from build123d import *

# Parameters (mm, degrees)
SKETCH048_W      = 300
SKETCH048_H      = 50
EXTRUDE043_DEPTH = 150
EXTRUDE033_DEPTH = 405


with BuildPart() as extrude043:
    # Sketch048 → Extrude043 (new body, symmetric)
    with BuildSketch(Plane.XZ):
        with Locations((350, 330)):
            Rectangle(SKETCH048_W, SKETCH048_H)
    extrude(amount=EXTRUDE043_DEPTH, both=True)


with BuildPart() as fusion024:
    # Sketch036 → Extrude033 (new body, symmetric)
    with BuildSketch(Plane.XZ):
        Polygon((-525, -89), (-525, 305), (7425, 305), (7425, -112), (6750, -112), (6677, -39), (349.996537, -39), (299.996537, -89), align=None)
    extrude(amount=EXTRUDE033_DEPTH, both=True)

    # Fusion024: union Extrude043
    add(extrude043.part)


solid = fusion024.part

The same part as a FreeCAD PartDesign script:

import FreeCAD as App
import Part
import Sketcher
from FreeCAD import Vector
Q = App.Units.Quantity

doc = App.newDocument("Part")
body = doc.addObject("PartDesign::Body", "Body")

sketch1 = body.newObject("Sketcher::SketchObject", "Sketch")
sketch1.AttachmentSupport = (doc.getObject("XZ_Plane"), [""])
sketch1.MapMode = "FlatFace"
sketch1.addGeometry([
    Part.LineSegment(Vector(200, 355, 0), Vector(200, 305, 0)),
    Part.LineSegment(Vector(200, 305, 0), Vector(500, 305, 0)),
    Part.LineSegment(Vector(500, 305, 0), Vector(500, 355, 0)),
    Part.LineSegment(Vector(500, 355, 0), Vector(200, 355, 0)),
], False)
sketch1.addConstraint([
    Sketcher.Constraint("Coincident", 0, 2, 1, 1),
    Sketcher.Constraint("Coincident", 1, 2, 2, 1),
    Sketcher.Constraint("Coincident", 2, 2, 3, 1),
    Sketcher.Constraint("Coincident", 3, 2, 0, 1),
    Sketcher.Constraint("Vertical", 0),
    Sketcher.Constraint("Horizontal", 1),
    Sketcher.Constraint("Vertical", 2),
    Sketcher.Constraint("Horizontal", 3),
    Sketcher.Constraint("DistanceX", 1, 1, 1, 2, Q("300 mm")),
    Sketcher.Constraint("DistanceY", 0, 2, 0, 1, Q("50 mm")),
    Sketcher.Constraint("DistanceX", -1, 1, 0, 2, Q("200 mm")),
    Sketcher.Constraint("DistanceY", -1, 1, 0, 2, Q("305 mm")),
])
pad1 = body.newObject("PartDesign::Pad", "Pad")
pad1.Profile = sketch1
pad1.Length = 300
pad1.Midplane = True
body2 = doc.addObject("PartDesign::Body", "Body001")

sketch2 = body2.newObject("Sketcher::SketchObject", "Sketch001")
sketch2.AttachmentSupport = (doc.getObject("XZ_Plane001"), [""])
sketch2.MapMode = "FlatFace"
sketch2.addGeometry([
    Part.LineSegment(Vector(-525, 305, 0), Vector(-525, -89, 0)),
    Part.LineSegment(Vector(-525, -89, 0), Vector(300, -89, 0)),
    Part.LineSegment(Vector(300, -89, 0), Vector(350, -39, 0)),
    Part.LineSegment(Vector(350, -39, 0), Vector(6677, -39, 0)),
    Part.LineSegment(Vector(6677, -39, 0), Vector(6750, -112, 0)),
    Part.LineSegment(Vector(6750, -112, 0), Vector(7425, -112, 0)),
    Part.LineSegment(Vector(7425, -112, 0), Vector(7425, 305, 0)),
    Part.LineSegment(Vector(7425, 305, 0), Vector(-525, 305, 0)),
], False)
sketch2.addConstraint([
    Sketcher.Constraint("Coincident", 0, 2, 1, 1),
    Sketcher.Constraint("Coincident", 1, 2, 2, 1),
    Sketcher.Constraint("Coincident", 2, 2, 3, 1),
    Sketcher.Constraint("Coincident", 3, 2, 4, 1),
    Sketcher.Constraint("Coincident", 4, 2, 5, 1),
    Sketcher.Constraint("Coincident", 5, 2, 6, 1),
    Sketcher.Constraint("Coincident", 6, 2, 7, 1),
    Sketcher.Constraint("Coincident", 7, 2, 0, 1),
    Sketcher.Constraint("Vertical", 0),
    Sketcher.Constraint("Horizontal", 1),
    Sketcher.Constraint("Horizontal", 3),
    Sketcher.Constraint("Horizontal", 5),
    Sketcher.Constraint("Vertical", 6),
    Sketcher.Constraint("Horizontal", 7),
    Sketcher.Constraint("Perpendicular", 2, 4),
    Sketcher.Constraint("DistanceX", 5, 1, 5, 2, Q("675 mm")),
    Sketcher.Constraint("DistanceX", 7, 2, 7, 1, Q("7950 mm")),
    Sketcher.Constraint("DistanceY", 0, 2, 0, 1, Q("394 mm")),
    Sketcher.Constraint("DistanceY", 6, 1, 6, 2, Q("417 mm")),
    Sketcher.Constraint("Angle", 2, Q("45 deg")),
    Sketcher.Constraint("DistanceX", 0, 2, -1, 1, Q("525 mm")),
    Sketcher.Constraint("DistanceY", 0, 2, -1, 1, Q("89 mm")),
    Sketcher.Constraint("DistanceY", 2, 2, -1, 1, Q("39 mm")),
    Sketcher.Constraint("DistanceX", 1, 1, 1, 2, Q("824.996537 mm")),
])
pad2 = body2.newObject("PartDesign::Pad", "Pad001")
pad2.Profile = sketch2
pad2.Length = 810
pad2.Midplane = True
doc.recompute()

boolean = body2.newObject("PartDesign::Boolean", "Boolean")
boolean.Type = "Fuse"
boolean.addObjects([body])

doc.recompute()
